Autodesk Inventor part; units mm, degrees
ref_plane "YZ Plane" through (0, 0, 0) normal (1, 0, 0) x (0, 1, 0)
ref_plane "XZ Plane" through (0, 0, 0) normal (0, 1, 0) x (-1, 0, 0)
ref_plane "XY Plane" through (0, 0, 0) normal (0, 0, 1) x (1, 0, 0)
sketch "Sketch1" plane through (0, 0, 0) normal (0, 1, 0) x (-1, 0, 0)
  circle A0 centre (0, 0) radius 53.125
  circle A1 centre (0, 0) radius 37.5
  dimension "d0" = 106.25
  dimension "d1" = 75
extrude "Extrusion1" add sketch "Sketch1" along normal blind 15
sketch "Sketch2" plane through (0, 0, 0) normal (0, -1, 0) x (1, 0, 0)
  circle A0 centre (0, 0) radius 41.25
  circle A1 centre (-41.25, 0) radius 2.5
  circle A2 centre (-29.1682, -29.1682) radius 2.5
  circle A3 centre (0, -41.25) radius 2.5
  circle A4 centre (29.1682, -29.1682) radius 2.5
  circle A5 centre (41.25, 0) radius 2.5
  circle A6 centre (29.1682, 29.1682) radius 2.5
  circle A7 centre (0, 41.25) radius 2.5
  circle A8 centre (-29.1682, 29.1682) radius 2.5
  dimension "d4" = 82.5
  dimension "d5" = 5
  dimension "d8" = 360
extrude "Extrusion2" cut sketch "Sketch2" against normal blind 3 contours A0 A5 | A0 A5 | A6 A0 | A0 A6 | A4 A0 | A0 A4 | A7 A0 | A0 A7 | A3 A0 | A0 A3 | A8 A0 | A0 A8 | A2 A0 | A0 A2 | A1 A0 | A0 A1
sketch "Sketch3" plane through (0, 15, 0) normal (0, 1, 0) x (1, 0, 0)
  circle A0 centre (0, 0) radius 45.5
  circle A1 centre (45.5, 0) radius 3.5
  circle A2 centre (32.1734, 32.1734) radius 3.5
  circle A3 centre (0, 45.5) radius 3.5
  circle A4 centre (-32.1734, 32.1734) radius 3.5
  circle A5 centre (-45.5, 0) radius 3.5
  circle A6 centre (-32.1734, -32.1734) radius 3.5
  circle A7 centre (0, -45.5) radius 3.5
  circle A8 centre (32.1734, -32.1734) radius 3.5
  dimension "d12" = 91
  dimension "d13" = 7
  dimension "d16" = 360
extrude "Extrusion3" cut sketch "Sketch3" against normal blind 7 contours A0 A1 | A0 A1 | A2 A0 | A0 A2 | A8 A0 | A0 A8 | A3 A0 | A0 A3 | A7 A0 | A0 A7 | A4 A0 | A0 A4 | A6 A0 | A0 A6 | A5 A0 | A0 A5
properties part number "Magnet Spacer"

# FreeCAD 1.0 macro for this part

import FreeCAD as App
import Part
import Sketcher

V = App.Vector

doc = App.newDocument("Part")
body = doc.addObject("PartDesign::Body", "Body")

# Sketch on XZ plane
sketch1 = body.newObject("Sketcher::SketchObject", "Sketch")
sketch1.AttachmentSupport = (doc.getObject("XZ_Plane"), [""])
sketch1.MapMode = "FlatFace"
sketch1.addGeometry([
    Part.Circle(V(0, 0, 0), V(0, 0, 1), 53),
    Part.Circle(V(0, 0, 0), V(0, 0, 1), 38),
], False)
sketch1.addConstraint([
    Sketcher.Constraint("Coincident", 0, 3, -1, 1),
    Sketcher.Constraint("Coincident", 1, 3, -1, 1),
    Sketcher.Constraint("Diameter", 1, 75.0),
    Sketcher.Constraint("Diameter", 0, 106.25),
])
pad1 = body.newObject("PartDesign::Pad", "Pad")
pad1.Profile = sketch1
pad1.Length = 15
pad1.Reversed = True

# Sketch on XZ plane
sketch2 = body.newObject("Sketcher::SketchObject", "Sketch001")
sketch2.AttachmentSupport = (doc.getObject("XZ_Plane"), [""])
sketch2.MapMode = "FlatFace"
sketch2.addGeometry([
    Part.Circle(V(41.2, 0, 0), V(0, 0, 1), 2.5),  # 0
    Part.Circle(V(29.2, 29.2, 0), V(0, 0, 1), 2.5),  # 1
    Part.Circle(V(29.2, -29.2, 0), V(0, 0, 1), 2.5),  # 2
    Part.Circle(V(0, 41.2, 0), V(0, 0, 1), 2.5),  # 3
    Part.Circle(V(0, -41.2, 0), V(0, 0, 1), 2.5),  # 4
    Part.Circle(V(-29.2, 29.2, 0), V(0, 0, 1), 2.5),  # 5
    Part.Circle(V(-29.2, -29.2, 0), V(0, 0, 1), 2.5),  # 6
    Part.Circle(V(-41.2, 0, 0), V(0, 0, 1), 2.5),  # 7
], False)
sketch2.addConstraint([
    Sketcher.Constraint("Equal", 0, 1),
    Sketcher.Constraint("Equal", 1, 2),
    Sketcher.Constraint("Equal", 2, 3),
    Sketcher.Constraint("Equal", 3, 4),
    Sketcher.Constraint("Equal", 4, 5),
    Sketcher.Constraint("Equal", 5, 6),
    Sketcher.Constraint("Equal", 6, 7),
    Sketcher.Constraint("Symmetric", 3, 3, 4, 3, -1, 1),
    Sketcher.Constraint("Symmetric", 2, 3, 5, 3, -1, 1),
    Sketcher.Constraint("Symmetric", 1, 3, 6, 3, -1, 1),
    Sketcher.Constraint("Symmetric", 0, 3, 7, 3, -1, 1),
    Sketcher.Constraint("Symmetric", 1, 3, 5, 3, -2),
    Sketcher.Constraint("PointOnObject", 0, 3, -1),
    Sketcher.Constraint("PointOnObject", 3, 3, -2),
    Sketcher.Constraint("Diameter", 0, 5.0),
    Sketcher.Constraint("DistanceY", 4, 3, 3, 3, 82.5),
    Sketcher.Constraint("DistanceX", -1, 1, 0, 3, 41.25),
    Sketcher.Constraint("DistanceX", -1, 1, 1, 3, 29.1682),
    Sketcher.Constraint("DistanceY", -1, 1, 1, 3, 29.1682),
])
pocket1 = body.newObject("PartDesign::Pocket", "Pocket")
pocket1.Profile = sketch2
pocket1.Length = 3

# Sketch on XZ plane
sketch3 = body.newObject("Sketcher::SketchObject", "Sketch002")
sketch3.AttachmentSupport = (doc.getObject("XZ_Plane"), [""])
sketch3.MapMode = "FlatFace"
sketch3.AttachmentOffset = App.Placement(V(0, 0, -15), App.Rotation())
sketch3.addGeometry([
    Part.Circle(V(45.5, 0, 0), V(0, 0, 1), 3.5),  # 0
    Part.Circle(V(32.2, -32.2, 0), V(0, 0, 1), 3.5),  # 1
    Part.Circle(V(32.2, 32.2, 0), V(0, 0, 1), 3.5),  # 2
    Part.Circle(V(0, -45.5, 0), V(0, 0, 1), 3.5),  # 3
    Part.Circle(V(0, 45.5, 0), V(0, 0, 1), 3.5),  # 4
    Part.Circle(V(-32.2, -32.2, 0), V(0, 0, 1), 3.5),  # 5
    Part.Circle(V(-32.2, 32.2, 0), V(0, 0, 1), 3.5),  # 6
    Part.Circle(V(-45.5, 0, 0), V(0, 0, 1), 3.5),  # 7
], False)
sketch3.addConstraint([
    Sketcher.Constraint("Equal", 0, 1),
    Sketcher.Constraint("Equal", 1, 2),
    Sketcher.Constraint("Equal", 2, 3),
    Sketcher.Constraint("Equal", 3, 4),
    Sketcher.Constraint("Equal", 4, 5),
    Sketcher.Constraint("Equal", 5, 6),
    Sketcher.Constraint("Equal", 6, 7),
    Sketcher.Constraint("Symmetric", 3, 3, 4, 3, -1, 1),
    Sketcher.Constraint("Symmetric", 2, 3, 5, 3, -1, 1),
    Sketcher.Constraint("Symmetric", 1, 3, 6, 3, -1, 1),
    Sketcher.Constraint("Symmetric", 0, 3, 7, 3, -1, 1),
    Sketcher.Constraint("Symmetric", 1, 3, 5, 3, -2),
    Sketcher.Constraint("PointOnObject", 0, 3, -1),
    Sketcher.Constraint("PointOnObject", 3, 3, -2),
    Sketcher.Constraint("Diameter", 0, 7.0),
    Sketcher.Constraint("DistanceY", 3, 3, 4, 3, 91.0),
    Sketcher.Constraint("DistanceX", -1, 1, 0, 3, 45.5),
    Sketcher.Constraint("DistanceX", -1, 1, 1, 3, 32.1734),
    Sketcher.Constraint("DistanceY", 1, 3, -1, 1, 32.1734),
])
pocket2 = body.newObject("PartDesign::Pocket", "Pocket001")
pocket2.Profile = sketch3
pocket2.Length = 7
pocket2.Reversed = True

doc.recompute()
